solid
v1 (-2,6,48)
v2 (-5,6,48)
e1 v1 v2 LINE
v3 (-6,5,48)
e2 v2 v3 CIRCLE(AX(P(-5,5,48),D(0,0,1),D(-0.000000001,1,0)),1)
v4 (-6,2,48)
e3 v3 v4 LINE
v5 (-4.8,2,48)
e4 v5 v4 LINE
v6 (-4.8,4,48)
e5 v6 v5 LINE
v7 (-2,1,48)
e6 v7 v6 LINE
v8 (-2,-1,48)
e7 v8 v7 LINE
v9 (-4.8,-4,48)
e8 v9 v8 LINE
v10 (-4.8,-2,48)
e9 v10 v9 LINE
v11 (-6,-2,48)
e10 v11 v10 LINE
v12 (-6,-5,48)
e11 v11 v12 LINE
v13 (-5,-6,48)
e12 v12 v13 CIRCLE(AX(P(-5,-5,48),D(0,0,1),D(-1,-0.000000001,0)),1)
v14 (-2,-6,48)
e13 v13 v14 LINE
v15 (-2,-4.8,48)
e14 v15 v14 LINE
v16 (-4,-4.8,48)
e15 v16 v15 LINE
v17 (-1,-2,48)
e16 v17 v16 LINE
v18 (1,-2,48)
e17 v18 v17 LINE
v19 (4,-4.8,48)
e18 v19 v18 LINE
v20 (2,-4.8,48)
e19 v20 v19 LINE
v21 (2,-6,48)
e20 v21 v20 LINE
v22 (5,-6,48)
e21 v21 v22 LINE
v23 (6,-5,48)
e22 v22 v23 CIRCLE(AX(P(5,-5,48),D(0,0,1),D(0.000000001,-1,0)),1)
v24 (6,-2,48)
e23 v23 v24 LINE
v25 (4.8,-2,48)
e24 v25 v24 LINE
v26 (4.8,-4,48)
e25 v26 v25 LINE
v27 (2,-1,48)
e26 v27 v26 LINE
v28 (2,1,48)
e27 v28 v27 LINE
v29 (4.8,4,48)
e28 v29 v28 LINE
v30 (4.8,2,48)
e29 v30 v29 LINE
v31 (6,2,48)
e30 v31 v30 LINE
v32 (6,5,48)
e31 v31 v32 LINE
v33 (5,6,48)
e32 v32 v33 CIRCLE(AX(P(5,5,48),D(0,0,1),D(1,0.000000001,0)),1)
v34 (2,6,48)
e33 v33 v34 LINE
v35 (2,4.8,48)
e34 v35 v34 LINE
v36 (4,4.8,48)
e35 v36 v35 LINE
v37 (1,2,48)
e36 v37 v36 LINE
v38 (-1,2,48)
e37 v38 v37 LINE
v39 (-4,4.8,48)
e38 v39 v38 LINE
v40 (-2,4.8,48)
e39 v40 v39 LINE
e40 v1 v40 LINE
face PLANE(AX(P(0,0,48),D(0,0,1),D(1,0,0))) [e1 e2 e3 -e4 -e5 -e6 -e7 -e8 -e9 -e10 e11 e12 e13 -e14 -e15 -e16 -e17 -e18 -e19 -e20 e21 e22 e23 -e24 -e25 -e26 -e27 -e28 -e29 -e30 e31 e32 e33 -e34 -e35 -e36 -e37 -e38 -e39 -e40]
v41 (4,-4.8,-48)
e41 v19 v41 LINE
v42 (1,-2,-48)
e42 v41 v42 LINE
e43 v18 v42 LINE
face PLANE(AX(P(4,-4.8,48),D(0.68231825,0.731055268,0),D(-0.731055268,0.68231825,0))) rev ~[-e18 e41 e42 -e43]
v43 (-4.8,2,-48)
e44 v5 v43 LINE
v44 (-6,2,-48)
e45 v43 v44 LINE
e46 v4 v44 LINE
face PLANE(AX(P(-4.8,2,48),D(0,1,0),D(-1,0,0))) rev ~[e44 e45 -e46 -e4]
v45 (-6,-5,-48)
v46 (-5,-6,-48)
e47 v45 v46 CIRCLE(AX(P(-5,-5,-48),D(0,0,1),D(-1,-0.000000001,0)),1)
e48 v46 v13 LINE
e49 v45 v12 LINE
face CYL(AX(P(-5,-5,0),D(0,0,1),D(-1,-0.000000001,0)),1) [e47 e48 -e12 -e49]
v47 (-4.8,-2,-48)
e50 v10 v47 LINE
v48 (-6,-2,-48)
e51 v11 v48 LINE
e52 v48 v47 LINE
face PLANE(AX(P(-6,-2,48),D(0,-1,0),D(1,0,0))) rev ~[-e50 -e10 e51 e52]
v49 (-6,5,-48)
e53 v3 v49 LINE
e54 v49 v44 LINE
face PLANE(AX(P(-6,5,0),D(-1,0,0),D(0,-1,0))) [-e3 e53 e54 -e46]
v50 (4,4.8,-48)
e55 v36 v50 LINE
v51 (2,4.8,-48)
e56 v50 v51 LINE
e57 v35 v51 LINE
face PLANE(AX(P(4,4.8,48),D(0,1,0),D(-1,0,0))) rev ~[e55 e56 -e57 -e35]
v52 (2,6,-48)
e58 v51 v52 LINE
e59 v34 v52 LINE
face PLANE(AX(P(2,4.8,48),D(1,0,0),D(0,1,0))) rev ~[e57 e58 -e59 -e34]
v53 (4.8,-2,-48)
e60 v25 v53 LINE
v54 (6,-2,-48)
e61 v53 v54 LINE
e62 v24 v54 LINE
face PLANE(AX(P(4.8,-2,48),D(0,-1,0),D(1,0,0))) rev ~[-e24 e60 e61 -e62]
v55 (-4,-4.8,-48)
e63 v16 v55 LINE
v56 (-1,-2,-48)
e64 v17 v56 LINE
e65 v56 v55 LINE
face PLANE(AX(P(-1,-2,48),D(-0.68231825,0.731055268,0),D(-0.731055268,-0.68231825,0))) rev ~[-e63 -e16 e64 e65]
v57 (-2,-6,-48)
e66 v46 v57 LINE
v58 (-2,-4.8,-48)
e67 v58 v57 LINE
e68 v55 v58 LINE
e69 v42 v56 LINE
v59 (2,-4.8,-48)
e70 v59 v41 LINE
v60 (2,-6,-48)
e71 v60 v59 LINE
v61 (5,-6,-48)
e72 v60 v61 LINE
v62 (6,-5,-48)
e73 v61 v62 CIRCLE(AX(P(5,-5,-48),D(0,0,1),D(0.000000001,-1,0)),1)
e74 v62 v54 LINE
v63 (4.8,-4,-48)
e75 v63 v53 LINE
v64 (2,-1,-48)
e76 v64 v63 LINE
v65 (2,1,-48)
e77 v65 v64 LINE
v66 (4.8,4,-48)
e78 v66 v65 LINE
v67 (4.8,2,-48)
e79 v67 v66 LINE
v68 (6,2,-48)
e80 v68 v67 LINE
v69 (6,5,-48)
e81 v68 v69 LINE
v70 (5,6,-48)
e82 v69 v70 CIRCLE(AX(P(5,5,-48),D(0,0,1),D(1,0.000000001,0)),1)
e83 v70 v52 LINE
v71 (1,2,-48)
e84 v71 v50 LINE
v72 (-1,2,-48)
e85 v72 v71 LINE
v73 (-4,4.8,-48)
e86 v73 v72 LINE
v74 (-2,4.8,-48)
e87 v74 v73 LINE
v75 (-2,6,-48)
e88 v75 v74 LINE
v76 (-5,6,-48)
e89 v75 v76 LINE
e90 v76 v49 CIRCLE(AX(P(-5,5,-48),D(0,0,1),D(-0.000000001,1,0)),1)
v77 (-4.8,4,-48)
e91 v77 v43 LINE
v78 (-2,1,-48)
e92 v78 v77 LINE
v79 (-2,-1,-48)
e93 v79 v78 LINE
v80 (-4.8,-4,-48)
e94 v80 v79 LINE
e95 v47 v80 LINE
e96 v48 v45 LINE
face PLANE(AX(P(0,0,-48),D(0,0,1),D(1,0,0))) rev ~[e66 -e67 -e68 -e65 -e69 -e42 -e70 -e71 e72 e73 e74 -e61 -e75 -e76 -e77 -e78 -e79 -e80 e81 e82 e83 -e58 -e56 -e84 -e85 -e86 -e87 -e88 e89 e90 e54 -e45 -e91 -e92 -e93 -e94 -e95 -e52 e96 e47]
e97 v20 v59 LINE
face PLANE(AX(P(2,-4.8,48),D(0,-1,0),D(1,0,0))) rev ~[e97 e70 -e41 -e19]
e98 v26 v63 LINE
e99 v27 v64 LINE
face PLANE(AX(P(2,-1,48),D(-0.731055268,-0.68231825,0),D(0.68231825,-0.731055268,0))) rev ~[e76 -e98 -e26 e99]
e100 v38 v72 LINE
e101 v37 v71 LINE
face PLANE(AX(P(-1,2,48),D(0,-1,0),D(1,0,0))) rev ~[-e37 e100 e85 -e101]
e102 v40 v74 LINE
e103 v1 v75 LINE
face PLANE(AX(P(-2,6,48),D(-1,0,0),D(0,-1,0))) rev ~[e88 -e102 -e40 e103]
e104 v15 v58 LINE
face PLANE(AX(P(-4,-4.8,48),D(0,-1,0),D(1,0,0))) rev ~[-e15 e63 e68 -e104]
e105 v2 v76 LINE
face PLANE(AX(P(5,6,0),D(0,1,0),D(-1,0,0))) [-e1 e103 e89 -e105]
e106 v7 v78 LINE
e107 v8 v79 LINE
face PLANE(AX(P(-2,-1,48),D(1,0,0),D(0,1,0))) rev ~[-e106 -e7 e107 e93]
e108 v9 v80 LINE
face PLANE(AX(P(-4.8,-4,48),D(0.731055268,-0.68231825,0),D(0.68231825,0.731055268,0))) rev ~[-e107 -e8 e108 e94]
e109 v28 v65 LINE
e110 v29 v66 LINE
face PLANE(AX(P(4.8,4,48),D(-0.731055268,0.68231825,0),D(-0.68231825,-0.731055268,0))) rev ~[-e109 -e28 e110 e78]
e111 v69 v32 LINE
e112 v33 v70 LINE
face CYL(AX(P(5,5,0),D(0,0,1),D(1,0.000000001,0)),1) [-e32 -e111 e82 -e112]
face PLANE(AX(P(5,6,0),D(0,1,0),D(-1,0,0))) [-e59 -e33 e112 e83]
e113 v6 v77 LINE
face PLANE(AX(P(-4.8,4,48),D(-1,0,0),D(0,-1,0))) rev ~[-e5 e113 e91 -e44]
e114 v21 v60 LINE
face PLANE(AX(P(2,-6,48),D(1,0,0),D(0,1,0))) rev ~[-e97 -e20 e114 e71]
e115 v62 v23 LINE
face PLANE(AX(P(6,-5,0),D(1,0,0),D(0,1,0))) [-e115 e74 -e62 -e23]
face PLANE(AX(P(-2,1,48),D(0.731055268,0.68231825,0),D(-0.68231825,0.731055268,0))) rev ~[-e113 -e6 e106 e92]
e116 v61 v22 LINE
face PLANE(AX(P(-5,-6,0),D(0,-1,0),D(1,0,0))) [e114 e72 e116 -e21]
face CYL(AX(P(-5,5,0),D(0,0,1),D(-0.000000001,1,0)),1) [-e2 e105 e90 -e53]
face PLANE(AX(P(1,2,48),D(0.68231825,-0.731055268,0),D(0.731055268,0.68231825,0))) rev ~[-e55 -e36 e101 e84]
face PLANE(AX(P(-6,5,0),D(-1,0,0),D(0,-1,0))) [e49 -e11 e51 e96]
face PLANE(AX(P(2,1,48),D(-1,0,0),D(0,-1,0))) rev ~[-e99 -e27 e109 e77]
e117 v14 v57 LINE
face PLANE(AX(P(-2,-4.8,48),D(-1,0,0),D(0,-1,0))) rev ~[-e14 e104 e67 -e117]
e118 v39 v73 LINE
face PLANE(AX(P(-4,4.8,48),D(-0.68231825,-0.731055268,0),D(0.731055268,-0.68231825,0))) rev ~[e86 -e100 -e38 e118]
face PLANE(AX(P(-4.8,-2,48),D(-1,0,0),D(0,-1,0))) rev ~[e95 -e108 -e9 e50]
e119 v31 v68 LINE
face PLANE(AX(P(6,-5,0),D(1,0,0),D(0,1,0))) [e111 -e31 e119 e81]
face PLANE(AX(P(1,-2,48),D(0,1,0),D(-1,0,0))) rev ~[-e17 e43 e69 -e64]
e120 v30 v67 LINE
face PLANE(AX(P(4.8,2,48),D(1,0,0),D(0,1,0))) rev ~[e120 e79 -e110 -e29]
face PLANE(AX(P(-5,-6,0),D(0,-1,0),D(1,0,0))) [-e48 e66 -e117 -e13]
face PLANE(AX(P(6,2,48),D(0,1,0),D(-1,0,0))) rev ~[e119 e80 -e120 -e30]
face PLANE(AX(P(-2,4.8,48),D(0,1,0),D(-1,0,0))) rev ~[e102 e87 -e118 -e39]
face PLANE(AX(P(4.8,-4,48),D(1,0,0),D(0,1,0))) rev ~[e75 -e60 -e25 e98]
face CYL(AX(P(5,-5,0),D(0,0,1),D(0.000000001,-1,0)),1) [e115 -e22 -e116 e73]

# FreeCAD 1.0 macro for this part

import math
import FreeCAD as App
import Part
import Sketcher
from FreeCAD import Vector


def add_polygon(sketch, points):
    """Adds a closed chain of lines whose ends are joined by coincident constraints."""
    first, n = sketch.GeometryCount, len(points)
    for a, b in zip(points, points[1:] + points[:1]):
        sketch.addGeometry(Part.LineSegment(App.Vector(*a, 0), App.Vector(*b, 0)), False)
    for i in range(n):
        sketch.addConstraint(Sketcher.Constraint("Coincident", first + i, 2, first + (i + 1) % n, 1))

doc = App.newDocument("Part")
body = doc.addObject("PartDesign::Body", "Body")

# Sketch on XY plane
sketch1 = body.newObject("Sketcher::SketchObject", "Sketch")
sketch1.AttachmentSupport = (doc.getObject("XY_Plane"), [""])
sketch1.MapMode = "FlatFace"
sketch1.addGeometry([
    Part.LineSegment(Vector(-6, 5, 0), Vector(-6, -5, 0)),  # 0
    Part.ArcOfCircle(Part.Circle(Vector(-5, -5, 0), Vector(0, 0, 1), 1), math.radians(-180), math.radians(-90)),  # 1
    Part.LineSegment(Vector(-5, -6, 0), Vector(5, -6, 0)),  # 2
    Part.ArcOfCircle(Part.Circle(Vector(5, -5, 0), Vector(0, 0, 1), 1), math.radians(-90), math.radians(0)),  # 3
    Part.LineSegment(Vector(6, -5, 0), Vector(6, 5, 0)),  # 4
    Part.ArcOfCircle(Part.Circle(Vector(5, 5, 0), Vector(0, 0, 1), 1), math.radians(0), math.radians(90)),  # 5
    Part.LineSegment(Vector(5, 6, 0), Vector(-5, 6, 0)),  # 6
    Part.ArcOfCircle(Part.Circle(Vector(-5, 5, 0), Vector(0, 0, 1), 1), math.radians(90), math.radians(180)),  # 7
], False)
sketch1.addConstraint([
    Sketcher.Constraint("Tangent", 0, 2, 1, 1),
    Sketcher.Constraint("Tangent", 1, 2, 2, 1),
    Sketcher.Constraint("Tangent", 2, 2, 3, 1),
    Sketcher.Constraint("Tangent", 3, 2, 4, 1),
    Sketcher.Constraint("Tangent", 4, 2, 5, 1),
    Sketcher.Constraint("Tangent", 5, 2, 6, 1),
    Sketcher.Constraint("Tangent", 6, 2, 7, 1),
    Sketcher.Constraint("Tangent", 7, 2, 0, 1),
    Sketcher.Constraint("Vertical", 0),
    Sketcher.Constraint("Horizontal", 2),
    Sketcher.Constraint("Vertical", 4),
    Sketcher.Constraint("Horizontal", 6),
    Sketcher.Constraint("Equal", 1, 3),
    Sketcher.Constraint("Equal", 3, 5),
    Sketcher.Constraint("Equal", 5, 7),
    Sketcher.Constraint("Symmetric", 1, 3, 5, 3, -1, 1),
    Sketcher.Constraint("Equal", 6, 0),
    Sketcher.Constraint("Radius", 1, 1.0),
    Sketcher.Constraint("DistanceX", 2, 1, 2, 2, 10.0),
])
pad1 = body.newObject("PartDesign::Pad", "Pad")
pad1.Profile = sketch1
pad1.Length = 96
pad1.Midplane = True

# Sketch on XY plane
sketch2 = body.newObject("Sketcher::SketchObject", "Sketch001")
sketch2.AttachmentSupport = (doc.getObject("XY_Plane"), [""])
sketch2.MapMode = "FlatFace"
sketch2.AttachmentOffset = App.Placement(Vector(0, 0, 48), App.Rotation())
add_polygon(sketch2, [(6, 2), (4.8, 2), (4.8, 4), (2, 1), (2, -1), (4.8, -4), (4.8, -2), (6, -2)])  # lines 0-7
sketch2.addConstraint([
    Sketcher.Constraint("Horizontal", 0),
    Sketcher.Constraint("Vertical", 1),
    Sketcher.Constraint("Vertical", 3),
    Sketcher.Constraint("Vertical", 5),
    Sketcher.Constraint("Horizontal", 6),
    Sketcher.Constraint("Vertical", 7),
    Sketcher.Constraint("Symmetric", 1, 2, 4, 2, -1),
    Sketcher.Constraint("Equal", 1, 3),
    Sketcher.Constraint("Equal", 3, 5),
    Sketcher.Constraint("Equal", 2, 4),
    Sketcher.Constraint("DistanceY", 1, 1, 1, 2, 2.0),
    Sketcher.Constraint("DistanceY", 7, 1, 7, 2, 4.0),
    Sketcher.Constraint("DistanceX", 0, 2, 0, 1, 1.2),
    Sketcher.Constraint("DistanceX", -1, 1, 2, 2, 2.0),
    Sketcher.Constraint("DistanceX", -1, 1, 6, 2, 6.0),
])
pocket1 = body.newObject("PartDesign::Pocket", "Pocket")
pocket1.Profile = sketch2
pocket1.Type = "ThroughAll"
doc.recompute()

polarpattern = body.newObject("PartDesign::PolarPattern", "PolarPattern")
polarpattern.Originals = [pocket1]
polarpattern.Axis = (doc.getObject("Z_Axis"), [""])
polarpattern.Angle = 360
polarpattern.Occurrences = 4
body.Tip = polarpattern

doc.recompute()
